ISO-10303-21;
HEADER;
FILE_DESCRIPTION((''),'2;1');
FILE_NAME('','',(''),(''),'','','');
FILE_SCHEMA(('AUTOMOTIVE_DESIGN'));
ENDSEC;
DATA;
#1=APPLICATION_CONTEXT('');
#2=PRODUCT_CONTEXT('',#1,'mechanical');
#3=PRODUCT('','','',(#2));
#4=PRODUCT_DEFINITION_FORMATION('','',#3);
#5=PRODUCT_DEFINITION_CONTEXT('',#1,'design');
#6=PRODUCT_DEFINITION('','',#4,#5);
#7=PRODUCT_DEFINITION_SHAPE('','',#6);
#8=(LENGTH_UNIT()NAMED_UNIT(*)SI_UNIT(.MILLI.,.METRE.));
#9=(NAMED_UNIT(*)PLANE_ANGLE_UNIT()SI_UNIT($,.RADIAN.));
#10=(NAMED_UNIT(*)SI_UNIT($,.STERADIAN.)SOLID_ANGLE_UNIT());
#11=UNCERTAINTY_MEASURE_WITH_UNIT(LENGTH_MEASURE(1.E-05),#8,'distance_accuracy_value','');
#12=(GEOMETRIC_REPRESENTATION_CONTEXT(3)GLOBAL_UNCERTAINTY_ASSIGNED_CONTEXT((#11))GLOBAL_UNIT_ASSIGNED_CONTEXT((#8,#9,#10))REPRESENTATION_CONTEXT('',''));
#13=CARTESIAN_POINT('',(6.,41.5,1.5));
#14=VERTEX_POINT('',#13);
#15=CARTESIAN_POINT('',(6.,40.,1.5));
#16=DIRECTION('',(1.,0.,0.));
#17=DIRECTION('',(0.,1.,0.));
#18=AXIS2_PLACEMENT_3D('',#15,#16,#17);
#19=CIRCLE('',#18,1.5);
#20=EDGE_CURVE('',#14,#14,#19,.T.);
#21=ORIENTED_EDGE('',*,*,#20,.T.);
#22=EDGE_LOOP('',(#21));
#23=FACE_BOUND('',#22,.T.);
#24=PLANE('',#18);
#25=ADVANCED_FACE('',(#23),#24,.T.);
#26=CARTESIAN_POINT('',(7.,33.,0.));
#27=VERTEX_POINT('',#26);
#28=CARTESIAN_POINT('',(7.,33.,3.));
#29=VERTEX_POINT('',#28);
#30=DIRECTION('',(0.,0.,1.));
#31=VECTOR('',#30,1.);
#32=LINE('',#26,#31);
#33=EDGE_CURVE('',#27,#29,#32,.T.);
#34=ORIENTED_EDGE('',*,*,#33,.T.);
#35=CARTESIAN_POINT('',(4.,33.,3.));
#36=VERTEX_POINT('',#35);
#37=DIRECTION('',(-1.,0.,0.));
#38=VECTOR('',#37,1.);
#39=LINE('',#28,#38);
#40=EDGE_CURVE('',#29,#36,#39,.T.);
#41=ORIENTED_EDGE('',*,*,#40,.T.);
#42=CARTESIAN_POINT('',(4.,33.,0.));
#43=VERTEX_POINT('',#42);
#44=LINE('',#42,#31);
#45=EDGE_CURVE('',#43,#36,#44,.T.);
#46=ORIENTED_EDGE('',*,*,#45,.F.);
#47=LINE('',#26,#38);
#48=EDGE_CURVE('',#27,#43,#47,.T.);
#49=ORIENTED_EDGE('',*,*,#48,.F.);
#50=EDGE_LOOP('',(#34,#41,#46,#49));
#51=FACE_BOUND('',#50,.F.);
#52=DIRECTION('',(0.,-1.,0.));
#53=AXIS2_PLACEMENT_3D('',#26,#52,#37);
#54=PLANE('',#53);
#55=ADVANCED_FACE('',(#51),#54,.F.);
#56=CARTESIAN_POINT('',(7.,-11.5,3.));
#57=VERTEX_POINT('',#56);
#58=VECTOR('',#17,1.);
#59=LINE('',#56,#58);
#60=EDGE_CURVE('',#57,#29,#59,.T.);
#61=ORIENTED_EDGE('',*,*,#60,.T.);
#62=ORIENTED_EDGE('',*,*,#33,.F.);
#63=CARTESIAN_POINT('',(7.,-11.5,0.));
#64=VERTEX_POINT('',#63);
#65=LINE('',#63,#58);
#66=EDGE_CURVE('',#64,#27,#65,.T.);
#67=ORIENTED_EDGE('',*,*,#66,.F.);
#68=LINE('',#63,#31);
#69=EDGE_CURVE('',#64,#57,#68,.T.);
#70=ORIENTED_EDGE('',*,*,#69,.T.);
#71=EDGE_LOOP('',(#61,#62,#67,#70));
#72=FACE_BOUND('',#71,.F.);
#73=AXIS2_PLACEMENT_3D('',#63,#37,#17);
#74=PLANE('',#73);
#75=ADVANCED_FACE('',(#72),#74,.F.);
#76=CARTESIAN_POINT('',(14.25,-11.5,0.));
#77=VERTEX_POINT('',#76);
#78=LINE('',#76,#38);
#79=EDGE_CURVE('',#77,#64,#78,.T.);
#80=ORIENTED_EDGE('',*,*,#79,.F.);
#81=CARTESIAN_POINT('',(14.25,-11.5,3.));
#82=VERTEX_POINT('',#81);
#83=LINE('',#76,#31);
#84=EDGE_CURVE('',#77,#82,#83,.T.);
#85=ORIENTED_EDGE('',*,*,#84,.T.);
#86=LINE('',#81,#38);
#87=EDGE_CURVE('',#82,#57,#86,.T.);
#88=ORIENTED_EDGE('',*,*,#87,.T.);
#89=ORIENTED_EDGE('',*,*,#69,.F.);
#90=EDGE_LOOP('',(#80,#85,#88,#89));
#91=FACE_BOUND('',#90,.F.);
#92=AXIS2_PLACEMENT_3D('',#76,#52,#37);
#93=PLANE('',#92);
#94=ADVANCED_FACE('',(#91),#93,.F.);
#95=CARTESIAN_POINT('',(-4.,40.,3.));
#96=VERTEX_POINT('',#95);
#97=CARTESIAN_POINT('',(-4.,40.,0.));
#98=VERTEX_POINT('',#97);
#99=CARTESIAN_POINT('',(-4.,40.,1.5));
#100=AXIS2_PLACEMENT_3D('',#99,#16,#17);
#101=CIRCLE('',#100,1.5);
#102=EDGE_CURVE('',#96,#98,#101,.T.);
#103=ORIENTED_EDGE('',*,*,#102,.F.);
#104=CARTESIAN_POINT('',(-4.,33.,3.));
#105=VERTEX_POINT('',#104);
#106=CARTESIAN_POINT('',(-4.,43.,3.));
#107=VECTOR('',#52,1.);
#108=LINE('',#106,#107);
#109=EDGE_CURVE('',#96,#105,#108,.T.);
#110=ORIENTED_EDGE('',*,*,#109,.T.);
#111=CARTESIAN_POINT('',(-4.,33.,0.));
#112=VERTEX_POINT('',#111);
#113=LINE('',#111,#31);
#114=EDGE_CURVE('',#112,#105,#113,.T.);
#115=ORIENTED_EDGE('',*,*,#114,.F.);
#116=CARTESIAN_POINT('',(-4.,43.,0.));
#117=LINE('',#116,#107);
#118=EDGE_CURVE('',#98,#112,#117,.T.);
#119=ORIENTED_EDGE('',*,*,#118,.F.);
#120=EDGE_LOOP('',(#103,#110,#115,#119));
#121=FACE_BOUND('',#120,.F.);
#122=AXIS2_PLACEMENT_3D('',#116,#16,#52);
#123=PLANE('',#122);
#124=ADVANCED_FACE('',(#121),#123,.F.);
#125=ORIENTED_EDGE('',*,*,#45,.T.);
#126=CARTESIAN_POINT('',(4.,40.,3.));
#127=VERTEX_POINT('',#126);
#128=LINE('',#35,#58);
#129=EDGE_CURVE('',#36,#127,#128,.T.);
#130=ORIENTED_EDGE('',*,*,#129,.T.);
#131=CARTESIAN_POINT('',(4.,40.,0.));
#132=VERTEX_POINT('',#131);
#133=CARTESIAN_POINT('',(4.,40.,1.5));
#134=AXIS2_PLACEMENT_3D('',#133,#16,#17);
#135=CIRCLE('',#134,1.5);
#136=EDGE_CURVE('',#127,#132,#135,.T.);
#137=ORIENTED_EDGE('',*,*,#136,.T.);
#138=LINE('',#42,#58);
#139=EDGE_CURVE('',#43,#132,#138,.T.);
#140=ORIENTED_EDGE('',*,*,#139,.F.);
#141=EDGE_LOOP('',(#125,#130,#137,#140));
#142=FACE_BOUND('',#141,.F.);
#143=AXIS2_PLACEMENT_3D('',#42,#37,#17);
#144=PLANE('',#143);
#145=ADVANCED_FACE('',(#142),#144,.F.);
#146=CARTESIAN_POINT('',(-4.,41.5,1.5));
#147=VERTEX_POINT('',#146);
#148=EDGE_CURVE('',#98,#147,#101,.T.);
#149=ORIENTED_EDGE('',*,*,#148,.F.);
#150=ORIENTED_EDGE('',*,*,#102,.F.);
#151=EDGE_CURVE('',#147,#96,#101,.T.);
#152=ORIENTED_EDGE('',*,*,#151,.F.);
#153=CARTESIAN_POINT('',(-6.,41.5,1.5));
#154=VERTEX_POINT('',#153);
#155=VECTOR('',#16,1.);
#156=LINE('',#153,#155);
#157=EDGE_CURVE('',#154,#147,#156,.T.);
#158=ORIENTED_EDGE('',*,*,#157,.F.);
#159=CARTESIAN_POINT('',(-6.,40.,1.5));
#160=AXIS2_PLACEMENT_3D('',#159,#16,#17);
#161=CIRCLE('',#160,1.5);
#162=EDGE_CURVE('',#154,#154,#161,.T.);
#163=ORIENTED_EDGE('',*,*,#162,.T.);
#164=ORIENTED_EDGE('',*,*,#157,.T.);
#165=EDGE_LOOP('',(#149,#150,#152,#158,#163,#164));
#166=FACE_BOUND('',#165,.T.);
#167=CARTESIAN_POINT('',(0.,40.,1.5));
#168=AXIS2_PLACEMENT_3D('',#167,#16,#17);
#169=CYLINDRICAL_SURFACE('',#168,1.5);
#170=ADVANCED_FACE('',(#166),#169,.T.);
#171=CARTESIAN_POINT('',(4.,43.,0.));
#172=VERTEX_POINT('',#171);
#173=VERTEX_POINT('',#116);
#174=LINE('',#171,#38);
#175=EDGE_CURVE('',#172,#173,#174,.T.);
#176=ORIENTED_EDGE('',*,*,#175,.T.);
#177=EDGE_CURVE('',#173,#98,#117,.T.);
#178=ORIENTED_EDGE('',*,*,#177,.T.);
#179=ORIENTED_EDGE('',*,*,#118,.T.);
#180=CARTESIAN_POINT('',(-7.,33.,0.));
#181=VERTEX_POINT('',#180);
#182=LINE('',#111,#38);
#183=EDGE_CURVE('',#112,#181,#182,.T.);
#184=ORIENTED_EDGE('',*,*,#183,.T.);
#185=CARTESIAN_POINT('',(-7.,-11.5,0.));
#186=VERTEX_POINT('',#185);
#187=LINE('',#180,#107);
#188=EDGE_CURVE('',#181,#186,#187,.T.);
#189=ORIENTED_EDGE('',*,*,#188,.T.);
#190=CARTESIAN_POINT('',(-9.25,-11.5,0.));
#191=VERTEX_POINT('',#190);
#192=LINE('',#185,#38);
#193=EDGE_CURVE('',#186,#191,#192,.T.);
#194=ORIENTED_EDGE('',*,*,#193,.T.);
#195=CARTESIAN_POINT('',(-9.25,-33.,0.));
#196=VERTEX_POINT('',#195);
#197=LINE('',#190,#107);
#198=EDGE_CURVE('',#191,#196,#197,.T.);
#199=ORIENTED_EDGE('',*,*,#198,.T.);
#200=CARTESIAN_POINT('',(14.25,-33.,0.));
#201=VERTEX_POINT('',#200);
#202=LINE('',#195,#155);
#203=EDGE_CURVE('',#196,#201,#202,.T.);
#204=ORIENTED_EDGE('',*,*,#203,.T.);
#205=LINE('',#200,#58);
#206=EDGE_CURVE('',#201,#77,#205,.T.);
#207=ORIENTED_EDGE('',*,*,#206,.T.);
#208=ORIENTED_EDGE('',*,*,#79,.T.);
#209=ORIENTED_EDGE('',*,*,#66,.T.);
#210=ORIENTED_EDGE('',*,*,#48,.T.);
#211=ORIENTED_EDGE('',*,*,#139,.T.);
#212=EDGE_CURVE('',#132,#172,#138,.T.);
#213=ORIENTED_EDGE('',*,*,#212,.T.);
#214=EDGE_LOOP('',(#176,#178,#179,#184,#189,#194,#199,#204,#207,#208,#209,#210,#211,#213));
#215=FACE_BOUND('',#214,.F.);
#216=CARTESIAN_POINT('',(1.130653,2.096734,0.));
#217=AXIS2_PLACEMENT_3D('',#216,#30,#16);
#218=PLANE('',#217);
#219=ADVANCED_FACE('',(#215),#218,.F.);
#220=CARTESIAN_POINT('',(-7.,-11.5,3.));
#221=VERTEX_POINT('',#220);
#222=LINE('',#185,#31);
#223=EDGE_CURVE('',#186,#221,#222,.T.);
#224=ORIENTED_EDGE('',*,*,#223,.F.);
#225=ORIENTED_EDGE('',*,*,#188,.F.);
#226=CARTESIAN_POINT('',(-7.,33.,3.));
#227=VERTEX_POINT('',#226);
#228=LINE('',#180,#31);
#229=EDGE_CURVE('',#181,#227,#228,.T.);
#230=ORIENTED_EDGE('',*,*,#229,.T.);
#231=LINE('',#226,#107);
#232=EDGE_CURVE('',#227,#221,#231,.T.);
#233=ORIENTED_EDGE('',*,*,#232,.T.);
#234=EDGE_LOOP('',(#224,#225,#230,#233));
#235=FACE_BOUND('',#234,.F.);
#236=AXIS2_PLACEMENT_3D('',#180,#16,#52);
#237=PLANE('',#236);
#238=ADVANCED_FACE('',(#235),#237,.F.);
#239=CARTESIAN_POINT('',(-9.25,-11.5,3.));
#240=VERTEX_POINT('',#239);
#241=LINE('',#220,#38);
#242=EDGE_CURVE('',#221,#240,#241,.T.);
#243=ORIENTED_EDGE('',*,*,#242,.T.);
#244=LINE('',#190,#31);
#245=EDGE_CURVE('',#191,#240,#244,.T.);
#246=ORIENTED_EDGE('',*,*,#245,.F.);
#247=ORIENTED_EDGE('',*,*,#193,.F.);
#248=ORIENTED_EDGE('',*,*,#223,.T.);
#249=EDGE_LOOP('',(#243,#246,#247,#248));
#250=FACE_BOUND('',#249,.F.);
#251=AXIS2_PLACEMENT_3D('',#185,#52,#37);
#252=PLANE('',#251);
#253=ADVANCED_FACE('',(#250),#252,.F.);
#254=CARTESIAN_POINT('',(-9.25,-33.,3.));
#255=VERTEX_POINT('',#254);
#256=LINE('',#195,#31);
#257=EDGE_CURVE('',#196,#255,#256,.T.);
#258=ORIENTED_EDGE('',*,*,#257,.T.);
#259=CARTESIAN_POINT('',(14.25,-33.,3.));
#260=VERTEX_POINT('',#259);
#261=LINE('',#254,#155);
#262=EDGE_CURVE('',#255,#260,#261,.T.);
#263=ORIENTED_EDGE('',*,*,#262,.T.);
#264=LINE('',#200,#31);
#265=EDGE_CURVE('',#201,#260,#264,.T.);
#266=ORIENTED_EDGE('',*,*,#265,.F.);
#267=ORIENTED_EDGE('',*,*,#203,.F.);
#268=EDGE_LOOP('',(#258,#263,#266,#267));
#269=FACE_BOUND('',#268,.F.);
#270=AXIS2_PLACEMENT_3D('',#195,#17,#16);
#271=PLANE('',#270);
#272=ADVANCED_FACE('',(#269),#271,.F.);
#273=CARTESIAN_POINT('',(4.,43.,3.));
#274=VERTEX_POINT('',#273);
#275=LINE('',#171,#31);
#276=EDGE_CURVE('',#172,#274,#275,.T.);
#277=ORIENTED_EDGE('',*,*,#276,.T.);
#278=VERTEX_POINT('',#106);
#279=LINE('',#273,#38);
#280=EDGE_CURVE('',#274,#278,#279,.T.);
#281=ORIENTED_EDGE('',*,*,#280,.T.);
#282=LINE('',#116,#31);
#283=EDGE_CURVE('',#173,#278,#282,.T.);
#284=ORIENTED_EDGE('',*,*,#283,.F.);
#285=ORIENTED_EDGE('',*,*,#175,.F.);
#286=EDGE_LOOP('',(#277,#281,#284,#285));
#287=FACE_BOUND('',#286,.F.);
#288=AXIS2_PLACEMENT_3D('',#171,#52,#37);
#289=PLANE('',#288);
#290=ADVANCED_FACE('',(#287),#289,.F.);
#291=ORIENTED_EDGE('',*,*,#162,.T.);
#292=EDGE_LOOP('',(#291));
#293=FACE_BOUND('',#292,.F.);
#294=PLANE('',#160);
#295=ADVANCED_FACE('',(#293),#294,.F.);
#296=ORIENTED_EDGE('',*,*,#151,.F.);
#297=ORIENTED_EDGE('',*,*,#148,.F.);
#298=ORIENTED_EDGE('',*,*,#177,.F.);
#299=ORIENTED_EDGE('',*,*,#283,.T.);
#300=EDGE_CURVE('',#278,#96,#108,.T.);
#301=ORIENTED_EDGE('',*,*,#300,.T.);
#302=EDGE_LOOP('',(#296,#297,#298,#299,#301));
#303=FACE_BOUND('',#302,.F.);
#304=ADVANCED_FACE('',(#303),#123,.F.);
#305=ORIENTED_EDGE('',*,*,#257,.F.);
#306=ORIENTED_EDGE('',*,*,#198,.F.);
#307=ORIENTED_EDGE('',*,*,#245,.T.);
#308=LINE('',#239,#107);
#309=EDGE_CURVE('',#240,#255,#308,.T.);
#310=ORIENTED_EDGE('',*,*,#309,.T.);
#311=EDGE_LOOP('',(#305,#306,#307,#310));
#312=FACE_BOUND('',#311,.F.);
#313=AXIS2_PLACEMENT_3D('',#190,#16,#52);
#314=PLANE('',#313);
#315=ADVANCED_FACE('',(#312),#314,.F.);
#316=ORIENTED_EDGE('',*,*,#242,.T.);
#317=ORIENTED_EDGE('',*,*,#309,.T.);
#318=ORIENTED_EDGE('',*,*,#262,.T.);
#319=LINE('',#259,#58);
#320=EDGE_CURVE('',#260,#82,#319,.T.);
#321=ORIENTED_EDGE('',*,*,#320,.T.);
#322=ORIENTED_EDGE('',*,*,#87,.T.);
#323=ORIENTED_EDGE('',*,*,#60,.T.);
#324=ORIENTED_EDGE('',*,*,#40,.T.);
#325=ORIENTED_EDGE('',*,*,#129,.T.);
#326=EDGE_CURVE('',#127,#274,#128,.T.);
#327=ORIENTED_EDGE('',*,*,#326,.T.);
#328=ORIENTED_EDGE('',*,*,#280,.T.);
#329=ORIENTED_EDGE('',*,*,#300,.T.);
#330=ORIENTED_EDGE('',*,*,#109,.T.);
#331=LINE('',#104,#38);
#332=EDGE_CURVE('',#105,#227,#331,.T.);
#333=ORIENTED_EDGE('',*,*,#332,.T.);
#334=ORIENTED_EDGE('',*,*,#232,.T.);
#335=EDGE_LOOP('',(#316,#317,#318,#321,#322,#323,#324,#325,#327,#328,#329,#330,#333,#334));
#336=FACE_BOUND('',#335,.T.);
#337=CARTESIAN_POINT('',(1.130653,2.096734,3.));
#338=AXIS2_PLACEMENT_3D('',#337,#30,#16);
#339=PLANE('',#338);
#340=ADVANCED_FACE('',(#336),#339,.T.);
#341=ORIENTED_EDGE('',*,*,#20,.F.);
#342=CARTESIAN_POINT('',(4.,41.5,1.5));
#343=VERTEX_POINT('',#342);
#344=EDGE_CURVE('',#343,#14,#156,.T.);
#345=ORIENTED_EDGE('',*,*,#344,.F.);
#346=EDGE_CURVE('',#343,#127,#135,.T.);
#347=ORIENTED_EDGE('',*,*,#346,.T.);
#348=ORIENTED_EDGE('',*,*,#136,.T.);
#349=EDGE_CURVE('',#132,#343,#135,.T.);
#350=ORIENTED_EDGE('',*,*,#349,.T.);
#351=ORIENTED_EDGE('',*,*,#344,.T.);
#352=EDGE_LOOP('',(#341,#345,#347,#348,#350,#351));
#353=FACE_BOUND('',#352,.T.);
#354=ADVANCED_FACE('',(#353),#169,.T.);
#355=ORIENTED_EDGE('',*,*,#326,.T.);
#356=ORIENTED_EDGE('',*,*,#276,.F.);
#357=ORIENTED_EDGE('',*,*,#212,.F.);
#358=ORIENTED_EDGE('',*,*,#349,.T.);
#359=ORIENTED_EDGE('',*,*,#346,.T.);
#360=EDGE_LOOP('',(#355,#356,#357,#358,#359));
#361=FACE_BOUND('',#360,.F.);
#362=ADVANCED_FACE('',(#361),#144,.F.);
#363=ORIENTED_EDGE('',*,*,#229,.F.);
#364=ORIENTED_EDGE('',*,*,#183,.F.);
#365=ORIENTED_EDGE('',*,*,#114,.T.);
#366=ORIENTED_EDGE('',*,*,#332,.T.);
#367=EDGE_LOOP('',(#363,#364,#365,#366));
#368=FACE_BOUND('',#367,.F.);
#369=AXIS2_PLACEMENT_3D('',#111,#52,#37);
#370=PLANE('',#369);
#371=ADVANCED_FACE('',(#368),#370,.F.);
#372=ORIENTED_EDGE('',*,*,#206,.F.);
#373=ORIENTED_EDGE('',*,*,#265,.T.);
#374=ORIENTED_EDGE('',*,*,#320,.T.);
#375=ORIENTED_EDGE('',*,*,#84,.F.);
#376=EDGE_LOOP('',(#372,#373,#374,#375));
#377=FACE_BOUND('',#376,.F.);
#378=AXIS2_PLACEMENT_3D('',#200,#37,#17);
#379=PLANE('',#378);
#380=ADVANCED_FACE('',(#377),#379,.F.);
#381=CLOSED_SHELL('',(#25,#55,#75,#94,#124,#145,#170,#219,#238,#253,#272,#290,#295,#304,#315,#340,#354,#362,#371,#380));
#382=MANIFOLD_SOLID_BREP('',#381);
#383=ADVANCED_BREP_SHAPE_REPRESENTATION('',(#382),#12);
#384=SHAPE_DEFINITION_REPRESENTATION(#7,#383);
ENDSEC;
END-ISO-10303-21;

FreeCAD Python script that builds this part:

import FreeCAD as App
import Part
import Sketcher

V = App.Vector
Q = App.Units.Quantity

doc = App.newDocument("Part")
body = doc.addObject("PartDesign::Body", "Body")

sketch1 = doc.addObject("Sketcher::SketchObject", "Sketch")
body.addObject(sketch1)
sketch1.AttachmentSupport = (doc.XY_Plane, [""])
sketch1.MapMode = "FlatFace"
sketch1.addGeometry([
    Part.LineSegment(V(-9.2, -33, 0), V(14.2, -33, 0)),
    Part.LineSegment(V(14.2, -33, 0), V(14.2, -11.5, 0)),
    Part.LineSegment(V(14.2, -11.5, 0), V(7, -11.5, 0)),
    Part.LineSegment(V(7, -11.5, 0), V(7, 33, 0)),
    Part.LineSegment(V(7, 33, 0), V(4, 33, 0)),
    Part.LineSegment(V(4, 33, 0), V(4, 43, 0)),
    Part.LineSegment(V(4, 43, 0), V(-4, 43, 0)),
    Part.LineSegment(V(-4, 43, 0), V(-4, 33, 0)),
    Part.LineSegment(V(-4, 33, 0), V(-7, 33, 0)),
    Part.LineSegment(V(-7, 33, 0), V(-7, -11.5, 0)),
    Part.LineSegment(V(-7, -11.5, 0), V(-9.2, -11.5, 0)),
    Part.LineSegment(V(-9.2, -11.5, 0), V(-9.2, -33, 0)),
], False)
sketch1.addConstraint([
    Sketcher.Constraint("Coincident", 0, 2, 1, 1),
    Sketcher.Constraint("Coincident", 1, 2, 2, 1),
    Sketcher.Constraint("Coincident", 2, 2, 3, 1),
    Sketcher.Constraint("Coincident", 3, 2, 4, 1),
    Sketcher.Constraint("Coincident", 4, 2, 5, 1),
    Sketcher.Constraint("Coincident", 5, 2, 6, 1),
    Sketcher.Constraint("Coincident", 6, 2, 7, 1),
    Sketcher.Constraint("Coincident", 7, 2, 8, 1),
    Sketcher.Constraint("Coincident", 8, 2, 9, 1),
    Sketcher.Constraint("Coincident", 9, 2, 10, 1),
    Sketcher.Constraint("Coincident", 10, 2, 11, 1),
    Sketcher.Constraint("Coincident", 11, 2, 0, 1),
    Sketcher.Constraint("Horizontal", 0),
    Sketcher.Constraint("Vertical", 1),
    Sketcher.Constraint("Horizontal", 2),
    Sketcher.Constraint("Vertical", 3),
    Sketcher.Constraint("Horizontal", 4),
    Sketcher.Constraint("Vertical", 5),
    Sketcher.Constraint("Horizontal", 6),
    Sketcher.Constraint("Vertical", 7),
    Sketcher.Constraint("Horizontal", 8),
    Sketcher.Constraint("Vertical", 9),
    Sketcher.Constraint("Horizontal", 10),
    Sketcher.Constraint("Vertical", 11),
    Sketcher.Constraint("Symmetric", 4, 2, 7, 2, -2),
    Sketcher.Constraint("Symmetric", 2, 2, 9, 2, -2),
    Sketcher.Constraint("DistanceX", 4, 2, 4, 1, Q("3 mm")),
    Sketcher.Constraint("DistanceX", 6, 2, 6, 1, Q("8 mm")),
    Sketcher.Constraint("DistanceY", 5, 1, 5, 2, Q("10 mm")),
    Sketcher.Constraint("DistanceX", 0, 1, 0, 2, Q("23.5 mm")),
    Sketcher.Constraint("DistanceY", 1, 1, 1, 2, Q("21.5 mm")),
    Sketcher.Constraint("DistanceY", 3, 1, 3, 2, Q("44.5 mm")),
    Sketcher.Constraint("DistanceY", 0, 2, -1, 1, Q("33 mm")),
    Sketcher.Constraint("DistanceX", 2, 2, 2, 1, Q("7.25 mm")),
])
pad1 = doc.addObject("PartDesign::Pad", "Pad")
body.addObject(pad1)
pad1.Profile = sketch1
pad1.Length = 3

sketch2 = doc.addObject("Sketcher::SketchObject", "Sketch001")
body.addObject(sketch2)
sketch2.AttachmentSupport = (doc.YZ_Plane, [""])
sketch2.MapMode = "FlatFace"
sketch2.addGeometry(Part.Circle(V(40, 1.5, 0), V(0, 0, 1), 1.5), False)
sketch2.addConstraint([
    Sketcher.Constraint("Diameter", 0, Q("3 mm")),
    Sketcher.Constraint("DistanceX", -1, 1, 0, 3, Q("40 mm")),
    Sketcher.Constraint("DistanceY", -1, 1, 0, 3, Q("1.5 mm")),
])
pad2 = doc.addObject("PartDesign::Pad", "Pad001")
body.addObject(pad2)
pad2.Profile = sketch2
pad2.Length = 12
pad2.Midplane = True

doc.recompute()
